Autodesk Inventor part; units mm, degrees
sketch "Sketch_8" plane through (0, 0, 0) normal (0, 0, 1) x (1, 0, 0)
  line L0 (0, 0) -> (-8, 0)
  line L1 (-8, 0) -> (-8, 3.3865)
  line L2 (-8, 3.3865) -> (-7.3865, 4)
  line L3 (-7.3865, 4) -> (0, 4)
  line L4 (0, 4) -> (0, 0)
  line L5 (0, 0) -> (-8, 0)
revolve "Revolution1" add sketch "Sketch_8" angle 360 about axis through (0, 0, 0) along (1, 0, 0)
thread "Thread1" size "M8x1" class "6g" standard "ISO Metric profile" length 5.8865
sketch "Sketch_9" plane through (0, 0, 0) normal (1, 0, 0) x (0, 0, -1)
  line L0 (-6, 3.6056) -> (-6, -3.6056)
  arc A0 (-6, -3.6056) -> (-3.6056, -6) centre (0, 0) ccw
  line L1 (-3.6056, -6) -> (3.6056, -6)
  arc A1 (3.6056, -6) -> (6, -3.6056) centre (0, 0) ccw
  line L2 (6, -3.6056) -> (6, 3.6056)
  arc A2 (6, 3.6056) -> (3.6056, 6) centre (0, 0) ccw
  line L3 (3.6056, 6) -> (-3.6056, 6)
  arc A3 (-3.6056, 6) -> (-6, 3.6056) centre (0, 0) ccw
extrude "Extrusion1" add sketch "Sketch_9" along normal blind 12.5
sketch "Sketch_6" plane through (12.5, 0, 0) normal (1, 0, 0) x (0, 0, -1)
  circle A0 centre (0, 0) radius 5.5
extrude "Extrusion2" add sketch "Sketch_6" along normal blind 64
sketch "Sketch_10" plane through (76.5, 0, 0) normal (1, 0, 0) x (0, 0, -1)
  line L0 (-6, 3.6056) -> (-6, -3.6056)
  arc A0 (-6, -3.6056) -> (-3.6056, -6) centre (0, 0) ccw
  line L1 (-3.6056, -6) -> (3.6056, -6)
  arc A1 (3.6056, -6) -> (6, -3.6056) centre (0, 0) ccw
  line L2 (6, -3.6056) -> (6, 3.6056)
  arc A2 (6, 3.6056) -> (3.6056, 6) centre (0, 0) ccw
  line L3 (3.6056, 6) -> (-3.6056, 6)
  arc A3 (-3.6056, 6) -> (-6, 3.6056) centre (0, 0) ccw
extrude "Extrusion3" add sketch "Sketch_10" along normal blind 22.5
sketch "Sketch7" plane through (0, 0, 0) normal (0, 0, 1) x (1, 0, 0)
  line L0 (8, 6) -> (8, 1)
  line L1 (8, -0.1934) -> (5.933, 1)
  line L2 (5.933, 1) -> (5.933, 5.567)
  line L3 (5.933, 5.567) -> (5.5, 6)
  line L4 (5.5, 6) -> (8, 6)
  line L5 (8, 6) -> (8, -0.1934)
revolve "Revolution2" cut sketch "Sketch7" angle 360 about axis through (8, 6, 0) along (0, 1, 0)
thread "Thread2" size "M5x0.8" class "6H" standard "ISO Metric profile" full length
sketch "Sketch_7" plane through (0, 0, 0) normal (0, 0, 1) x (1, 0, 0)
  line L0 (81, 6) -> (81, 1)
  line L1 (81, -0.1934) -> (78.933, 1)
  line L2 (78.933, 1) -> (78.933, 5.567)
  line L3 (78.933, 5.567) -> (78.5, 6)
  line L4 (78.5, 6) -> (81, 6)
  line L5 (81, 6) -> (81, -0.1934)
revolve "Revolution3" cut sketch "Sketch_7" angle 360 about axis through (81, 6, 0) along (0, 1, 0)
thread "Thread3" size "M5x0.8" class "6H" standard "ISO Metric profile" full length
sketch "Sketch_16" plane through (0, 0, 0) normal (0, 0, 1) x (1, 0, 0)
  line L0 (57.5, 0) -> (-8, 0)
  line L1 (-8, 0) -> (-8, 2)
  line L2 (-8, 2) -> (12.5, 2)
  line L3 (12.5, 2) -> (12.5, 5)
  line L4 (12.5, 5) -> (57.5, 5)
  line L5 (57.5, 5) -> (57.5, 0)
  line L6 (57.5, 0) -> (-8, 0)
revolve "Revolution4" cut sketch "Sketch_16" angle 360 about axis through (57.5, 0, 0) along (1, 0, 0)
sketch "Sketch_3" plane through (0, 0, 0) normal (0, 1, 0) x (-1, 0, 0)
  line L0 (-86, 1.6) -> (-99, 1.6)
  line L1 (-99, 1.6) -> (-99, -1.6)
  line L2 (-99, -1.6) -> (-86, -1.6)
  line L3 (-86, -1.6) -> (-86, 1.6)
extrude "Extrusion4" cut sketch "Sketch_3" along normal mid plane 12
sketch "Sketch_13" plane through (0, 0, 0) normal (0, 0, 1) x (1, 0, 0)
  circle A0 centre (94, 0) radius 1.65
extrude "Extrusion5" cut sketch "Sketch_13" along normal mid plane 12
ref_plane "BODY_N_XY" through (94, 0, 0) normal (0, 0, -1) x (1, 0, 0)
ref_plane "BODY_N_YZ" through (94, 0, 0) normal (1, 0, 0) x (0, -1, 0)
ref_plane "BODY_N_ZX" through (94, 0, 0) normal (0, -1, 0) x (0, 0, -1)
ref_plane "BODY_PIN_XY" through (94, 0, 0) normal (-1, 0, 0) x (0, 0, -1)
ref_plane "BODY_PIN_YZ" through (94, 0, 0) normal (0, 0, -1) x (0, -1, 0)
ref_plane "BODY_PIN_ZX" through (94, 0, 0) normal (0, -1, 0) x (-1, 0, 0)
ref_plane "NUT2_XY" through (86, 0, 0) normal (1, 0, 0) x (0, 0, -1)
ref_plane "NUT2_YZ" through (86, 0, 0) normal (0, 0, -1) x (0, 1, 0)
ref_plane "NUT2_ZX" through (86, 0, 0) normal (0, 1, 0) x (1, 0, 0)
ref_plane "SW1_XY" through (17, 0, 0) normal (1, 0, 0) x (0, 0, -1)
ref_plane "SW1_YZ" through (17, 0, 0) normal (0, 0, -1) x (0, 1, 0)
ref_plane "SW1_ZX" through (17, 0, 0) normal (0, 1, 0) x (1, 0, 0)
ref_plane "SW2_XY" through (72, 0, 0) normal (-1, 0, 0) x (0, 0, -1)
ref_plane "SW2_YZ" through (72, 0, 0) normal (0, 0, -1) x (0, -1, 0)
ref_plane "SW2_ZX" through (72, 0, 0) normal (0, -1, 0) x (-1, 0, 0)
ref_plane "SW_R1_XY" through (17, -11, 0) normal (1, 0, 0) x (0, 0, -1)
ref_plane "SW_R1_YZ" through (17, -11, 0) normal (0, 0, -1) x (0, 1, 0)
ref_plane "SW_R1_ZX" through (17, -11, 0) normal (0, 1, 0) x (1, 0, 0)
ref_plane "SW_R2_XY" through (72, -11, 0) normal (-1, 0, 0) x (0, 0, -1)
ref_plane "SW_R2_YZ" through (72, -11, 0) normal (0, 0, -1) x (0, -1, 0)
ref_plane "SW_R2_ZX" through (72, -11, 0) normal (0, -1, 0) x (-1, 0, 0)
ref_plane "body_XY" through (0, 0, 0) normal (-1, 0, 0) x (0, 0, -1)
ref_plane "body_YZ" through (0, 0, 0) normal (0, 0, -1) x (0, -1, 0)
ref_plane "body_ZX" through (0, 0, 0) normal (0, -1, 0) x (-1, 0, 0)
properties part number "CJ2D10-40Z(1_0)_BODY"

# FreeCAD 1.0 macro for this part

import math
import FreeCAD as App
import Part
import Sketcher

V = App.Vector
Q = App.Units.Quantity

doc = App.newDocument("Part")
params = doc.addObject("Spreadsheet::Sheet", "Params")
for row, (alias, value) in enumerate([
    ("sketch1_width", "8 mm"),
    ("sketch1_height", "4 mm"),
    ("revolution_angle", "360 deg"),
    ("sketch2_radius", "7 mm"),
    ("pad1_length", "12.5 mm"),
    ("sketch3_diameter", "11 mm"),
    ("pad2_length", "64 mm"),
    ("sketch4_radius", "7 mm"),
    ("pad3_length", "22.5 mm"),
    ("sketch5_width", "2.5 mm"),
    ("groove_angle", "360 deg"),
    ("sketch6_width", "2.5 mm"),
    ("groove2_angle", "360 deg"),
    ("sketch7_width", "45 mm"),
    ("sketch7_height", "5 mm"),
    ("sketch7_height2", "3 mm"),
    ("sketch7_width2", "65.5 mm"),
    ("groove3_angle", "360 deg"),
    ("sketch8_width", "13 mm"),
    ("sketch8_height", "3.2 mm"),
    ("pocket1_length", "12 mm"),
    ("sketch9_diameter", "3.3 mm"),
    ("pocket2_length", "12 mm"),
], start=1):
    params.set(f"A{row}", alias)
    params.set(f"B{row}", "=" + value)
    params.setAlias(f"B{row}", alias)

body = doc.addObject("PartDesign::Body", "Body")

# Sketch on XY plane
sketch1 = doc.addObject("Sketcher::SketchObject", "Sketch")
body.addObject(sketch1)
sketch1.AttachmentSupport = (doc.XY_Plane, [""])
sketch1.MapMode = "FlatFace"
sketch1.addGeometry([
    Part.LineSegment(V(-8, 0, 0), V(0, 0, 0)),  # 0
    Part.LineSegment(V(0, 0, 0), V(0, 4, 0)),  # 1
    Part.LineSegment(V(0, 4, 0), V(-7.4, 4, 0)),  # 2
    Part.LineSegment(V(-7.4, 4, 0), V(-8, 3.4, 0)),  # 3
    Part.LineSegment(V(-8, 3.4, 0), V(-8, 0, 0)),  # 4
], False)
sketch1.addConstraint([
    Sketcher.Constraint("Coincident", 0, 2, 1, 1),
    Sketcher.Constraint("Coincident", 1, 2, 2, 1),
    Sketcher.Constraint("Coincident", 2, 2, 3, 1),
    Sketcher.Constraint("Coincident", 3, 2, 4, 1),
    Sketcher.Constraint("Coincident", 4, 2, 0, 1),
    Sketcher.Constraint("Horizontal", 0),
    Sketcher.Constraint("Vertical", 1),
    Sketcher.Constraint("Horizontal", 2),
    Sketcher.Constraint("Vertical", 4),
    Sketcher.Constraint("Coincident", 0, 2, -1, 1),
    Sketcher.Constraint("DistanceX", 0, 1, 0, 2, 8.0),
    Sketcher.Constraint("DistanceY", 1, 1, 1, 2, 4.0),
    Sketcher.Constraint("Angle", 3, Q("-135 deg")),
    Sketcher.Constraint("DistanceX", 2, 2, 2, 1, 7.3865),
])
sketch1.setExpression("Constraints[10]", "Params.sketch1_width")
sketch1.setExpression("Constraints[11]", "Params.sketch1_height")
revolution = doc.addObject("PartDesign::Revolution", "Revolution")
body.addObject(revolution)
revolution.Profile = sketch1
revolution.ReferenceAxis = (sketch1, ["H_Axis"])
revolution.setExpression("Angle", "Params.revolution_angle")

# Sketch on YZ plane
sketch2 = doc.addObject("Sketcher::SketchObject", "Sketch001")
body.addObject(sketch2)
sketch2.AttachmentSupport = (doc.YZ_Plane, [""])
sketch2.MapMode = "FlatFace"
sketch2.addGeometry([
    Part.ArcOfCircle(Part.Circle(V(0, 0, 0), V(0, 0, 1), 7), math.radians(31), math.radians(59)),  # 0
    Part.LineSegment(V(3.6, 6, 0), V(-3.6, 6, 0)),  # 1
    Part.ArcOfCircle(Part.Circle(V(0, 0, 0), V(0, 0, 1), 7), math.radians(121), math.radians(149)),  # 2
    Part.LineSegment(V(-6, 3.6, 0), V(-6, -3.6, 0)),  # 3
    Part.ArcOfCircle(Part.Circle(V(0, 0, 0), V(0, 0, 1), 7), math.radians(-149), math.radians(-121)),  # 4
    Part.LineSegment(V(-3.6, -6, 0), V(3.6, -6, 0)),  # 5
    Part.ArcOfCircle(Part.Circle(V(0, 0, 0), V(0, 0, 1), 7), math.radians(-59), math.radians(-31)),  # 6
    Part.LineSegment(V(6, -3.6, 0), V(6, 3.6, 0)),  # 7
], False)
sketch2.addConstraint([
    Sketcher.Constraint("Coincident", 0, 2, 1, 1),
    Sketcher.Constraint("Coincident", 1, 2, 2, 1),
    Sketcher.Constraint("Coincident", 2, 2, 3, 1),
    Sketcher.Constraint("Coincident", 3, 2, 4, 1),
    Sketcher.Constraint("Coincident", 4, 2, 5, 1),
    Sketcher.Constraint("Coincident", 5, 2, 6, 1),
    Sketcher.Constraint("Coincident", 6, 2, 7, 1),
    Sketcher.Constraint("Coincident", 7, 2, 0, 1),
    Sketcher.Constraint("Horizontal", 1),
    Sketcher.Constraint("Vertical", 3),
    Sketcher.Constraint("Horizontal", 5),
    Sketcher.Constraint("Vertical", 7),
    Sketcher.Constraint("Coincident", 0, 3, -1, 1),
    Sketcher.Constraint("Coincident", 2, 3, -1, 1),
    Sketcher.Constraint("Coincident", 4, 3, -1, 1),
    Sketcher.Constraint("Coincident", 6, 3, -1, 1),
    Sketcher.Constraint("Equal", 0, 2),
    Sketcher.Constraint("Equal", 2, 4),
    Sketcher.Constraint("Equal", 4, 6),
    Sketcher.Constraint("Horizontal", 3, 2, 6, 2),
    Sketcher.Constraint("Vertical", 1, 2, 4, 2),
    Sketcher.Constraint("Equal", 5, 3),
    Sketcher.Constraint("Radius", 0, 7.0),
    Sketcher.Constraint("DistanceY", -1, 1, 0, 2, 6.0),
])
sketch2.setExpression("Constraints[22]", "Params.sketch2_radius")
pad1 = doc.addObject("PartDesign::Pad", "Pad")
body.addObject(pad1)
pad1.Profile = sketch2
pad1.setExpression("Length", "Params.pad1_length")

# Sketch on YZ plane
sketch3 = doc.addObject("Sketcher::SketchObject", "Sketch002")
body.addObject(sketch3)
sketch3.AttachmentSupport = (doc.YZ_Plane, [""])
sketch3.MapMode = "FlatFace"
sketch3.AttachmentOffset = App.Placement(V(0, 0, 12.5), App.Rotation())
sketch3.addGeometry(Part.Circle(V(0, 0, 0), V(0, 0, 1), 6), False)
sketch3.addConstraint([
    Sketcher.Constraint("Coincident", 0, 3, -1, 1),
    Sketcher.Constraint("Diameter", 0, 11.0),
])
sketch3.setExpression("Constraints[1]", "Params.sketch3_diameter")
pad2 = doc.addObject("PartDesign::Pad", "Pad001")
body.addObject(pad2)
pad2.Profile = sketch3
pad2.setExpression("Length", "Params.pad2_length")

# Sketch on YZ plane
sketch4 = doc.addObject("Sketcher::SketchObject", "Sketch003")
body.addObject(sketch4)
sketch4.AttachmentSupport = (doc.YZ_Plane, [""])
sketch4.MapMode = "FlatFace"
sketch4.AttachmentOffset = App.Placement(V(0, 0, 76.5), App.Rotation())
sketch4.addGeometry([
    Part.ArcOfCircle(Part.Circle(V(0, 0, 0), V(0, 0, 1), 7), math.radians(31), math.radians(59)),  # 0
    Part.LineSegment(V(3.6, 6, 0), V(-3.6, 6, 0)),  # 1
    Part.ArcOfCircle(Part.Circle(V(0, 0, 0), V(0, 0, 1), 7), math.radians(121), math.radians(149)),  # 2
    Part.LineSegment(V(-6, 3.6, 0), V(-6, -3.6, 0)),  # 3
    Part.ArcOfCircle(Part.Circle(V(0, 0, 0), V(0, 0, 1), 7), math.radians(-149), math.radians(-121)),  # 4
    Part.LineSegment(V(-3.6, -6, 0), V(3.6, -6, 0)),  # 5
    Part.ArcOfCircle(Part.Circle(V(0, 0, 0), V(0, 0, 1), 7), math.radians(-59), math.radians(-31)),  # 6
    Part.LineSegment(V(6, -3.6, 0), V(6, 3.6, 0)),  # 7
], False)
sketch4.addConstraint([
    Sketcher.Constraint("Coincident", 0, 2, 1, 1),
    Sketcher.Constraint("Coincident", 1, 2, 2, 1),
    Sketcher.Constraint("Coincident", 2, 2, 3, 1),
    Sketcher.Constraint("Coincident", 3, 2, 4, 1),
    Sketcher.Constraint("Coincident", 4, 2, 5, 1),
    Sketcher.Constraint("Coincident", 5, 2, 6, 1),
    Sketcher.Constraint("Coincident", 6, 2, 7, 1),
    Sketcher.Constraint("Coincident", 7, 2, 0, 1),
    Sketcher.Constraint("Horizontal", 1),
    Sketcher.Constraint("Vertical", 3),
    Sketcher.Constraint("Horizontal", 5),
    Sketcher.Constraint("Vertical", 7),
    Sketcher.Constraint("Coincident", 0, 3, -1, 1),
    Sketcher.Constraint("Coincident", 2, 3, -1, 1),
    Sketcher.Constraint("Coincident", 4, 3, -1, 1),
    Sketcher.Constraint("Coincident", 6, 3, -1, 1),
    Sketcher.Constraint("Equal", 0, 2),
    Sketcher.Constraint("Equal", 2, 4),
    Sketcher.Constraint("Equal", 4, 6),
    Sketcher.Constraint("Horizontal", 3, 2, 6, 2),
    Sketcher.Constraint("Vertical", 1, 2, 4, 2),
    Sketcher.Constraint("Equal", 5, 3),
    Sketcher.Constraint("Radius", 0, 7.0),
    Sketcher.Constraint("DistanceY", -1, 1, 0, 2, 6.0),
])
sketch4.setExpression("Constraints[22]", "Params.sketch4_radius")
pad3 = doc.addObject("PartDesign::Pad", "Pad002")
body.addObject(pad3)
pad3.Profile = sketch4
pad3.setExpression("Length", "Params.pad3_length")

# Sketch on XY plane
sketch5 = doc.addObject("Sketcher::SketchObject", "Sketch004")
body.addObject(sketch5)
sketch5.AttachmentSupport = (doc.XY_Plane, [""])
sketch5.MapMode = "FlatFace"
sketch5.addGeometry([
    Part.LineSegment(V(8, -0.2, 0), V(8, 6, 0)),  # 0
    Part.LineSegment(V(8, 6, 0), V(5.5, 6, 0)),  # 1
    Part.LineSegment(V(5.5, 6, 0), V(5.9, 5.6, 0)),  # 2
    Part.LineSegment(V(5.9, 5.6, 0), V(5.9, 1, 0)),  # 3
    Part.LineSegment(V(5.9, 1, 0), V(8, -0.2, 0)),  # 4
], False)
sketch5.addGeometry(Part.LineSegment(V(8, -0.2, 0), V(8, 6, 0)), True)  # axis
sketch5.addConstraint([
    Sketcher.Constraint("Coincident", 0, 2, 1, 1),
    Sketcher.Constraint("Coincident", 1, 2, 2, 1),
    Sketcher.Constraint("Coincident", 2, 2, 3, 1),
    Sketcher.Constraint("Coincident", 3, 2, 4, 1),
    Sketcher.Constraint("Coincident", 4, 2, 0, 1),
    Sketcher.Constraint("Vertical", 0),
    Sketcher.Constraint("Horizontal", 1),
    Sketcher.Constraint("Vertical", 3),
    Sketcher.Constraint("Vertical", 5),
    Sketcher.Constraint("Coincident", 5, 1, 4, 2),
    Sketcher.Constraint("Horizontal", 1, 2, 5, 2),
    Sketcher.Constraint("Angle", 2, Q("-45 deg")),
    Sketcher.Constraint("Angle", 4, Q("-30.0004 deg")),
    Sketcher.Constraint("DistanceX", 1, 2, 1, 1, 2.5),
    Sketcher.Constraint("DistanceX", -1, 1, 0, 2, 8.0),
    Sketcher.Constraint("DistanceY", -1, 1, 0, 2, 6.0),
    Sketcher.Constraint("DistanceY", -1, 1, 3, 2, 1.0),
    Sketcher.Constraint("DistanceY", 3, 2, 3, 1, 4.567),
])
sketch5.setExpression("Constraints[13]", "Params.sketch5_width")
groove = doc.addObject("PartDesign::Groove", "Groove")
body.addObject(groove)
groove.Profile = sketch5
groove.ReferenceAxis = (sketch5, ["Axis0"])
groove.setExpression("Angle", "Params.groove_angle")

# Sketch on XY plane
sketch6 = doc.addObject("Sketcher::SketchObject", "Sketch005")
body.addObject(sketch6)
sketch6.AttachmentSupport = (doc.XY_Plane, [""])
sketch6.MapMode = "FlatFace"
sketch6.addGeometry([
    Part.LineSegment(V(81, -0.2, 0), V(81, 6, 0)),  # 0
    Part.LineSegment(V(81, 6, 0), V(78.5, 6, 0)),  # 1
    Part.LineSegment(V(78.5, 6, 0), V(78.9, 5.6, 0)),  # 2
    Part.LineSegment(V(78.9, 5.6, 0), V(78.9, 1, 0)),  # 3
    Part.LineSegment(V(78.9, 1, 0), V(81, -0.2, 0)),  # 4
], False)
sketch6.addGeometry(Part.LineSegment(V(81, -0.2, 0), V(81, 6, 0)), True)  # axis
sketch6.addConstraint([
    Sketcher.Constraint("Coincident", 0, 2, 1, 1),
    Sketcher.Constraint("Coincident", 1, 2, 2, 1),
    Sketcher.Constraint("Coincident", 2, 2, 3, 1),
    Sketcher.Constraint("Coincident", 3, 2, 4, 1),
    Sketcher.Constraint("Coincident", 4, 2, 0, 1),
    Sketcher.Constraint("Vertical", 0),
    Sketcher.Constraint("Horizontal", 1),
    Sketcher.Constraint("Vertical", 3),
    Sketcher.Constraint("Vertical", 5),
    Sketcher.Constraint("Coincident", 5, 1, 4, 2),
    Sketcher.Constraint("Horizontal", 1, 2, 5, 2),
    Sketcher.Constraint("Angle", 2, Q("-45 deg")),
    Sketcher.Constraint("Angle", 4, Q("-30.0004 deg")),
    Sketcher.Constraint("DistanceX", 1, 2, 1, 1, 2.5),
    Sketcher.Constraint("DistanceX", -1, 1, 0, 2, 81.0),
    Sketcher.Constraint("DistanceY", -1, 1, 0, 2, 6.0),
    Sketcher.Constraint("DistanceY", -1, 1, 3, 2, 1.0),
    Sketcher.Constraint("DistanceY", 3, 2, 3, 1, 4.567),
])
sketch6.setExpression("Constraints[13]", "Params.sketch6_width")
groove2 = doc.addObject("PartDesign::Groove", "Groove001")
body.addObject(groove2)
groove2.Profile = sketch6
groove2.ReferenceAxis = (sketch6, ["Axis0"])
groove2.setExpression("Angle", "Params.groove2_angle")

# Sketch on XY plane
sketch7 = doc.addObject("Sketcher::SketchObject", "Sketch006")
body.addObject(sketch7)
sketch7.AttachmentSupport = (doc.XY_Plane, [""])
sketch7.MapMode = "FlatFace"
sketch7.addGeometry([
    Part.LineSegment(V(-8, 0, 0), V(57.5, 0, 0)),  # 0
    Part.LineSegment(V(57.5, 0, 0), V(57.5, 5, 0)),  # 1
    Part.LineSegment(V(57.5, 5, 0), V(12.5, 5, 0)),  # 2
    Part.LineSegment(V(12.5, 5, 0), V(12.5, 2, 0)),  # 3
    Part.LineSegment(V(12.5, 2, 0), V(-8, 2, 0)),  # 4
    Part.LineSegment(V(-8, 2, 0), V(-8, 0, 0)),  # 5
], False)
sketch7.addConstraint([
    Sketcher.Constraint("Coincident", 0, 2, 1, 1),
    Sketcher.Constraint("Coincident", 1, 2, 2, 1),
    Sketcher.Constraint("Coincident", 2, 2, 3, 1),
    Sketcher.Constraint("Coincident", 3, 2, 4, 1),
    Sketcher.Constraint("Coincident", 4, 2, 5, 1),
    Sketcher.Constraint("Coincident", 5, 2, 0, 1),
    Sketcher.Constraint("Horizontal", 0),
    Sketcher.Constraint("Vertical", 1),
    Sketcher.Constraint("Horizontal", 2),
    Sketcher.Constraint("Vertical", 3),
    Sketcher.Constraint("Horizontal", 4),
    Sketcher.Constraint("Vertical", 5),
    Sketcher.Constraint("PointOnObject", 0, 2, -1),
    Sketcher.Constraint("DistanceX", 2, 2, 2, 1, 45.0),
    Sketcher.Constraint("DistanceY", 1, 1, 1, 2, 5.0),
    Sketcher.Constraint("DistanceY", 3, 2, 3, 1, 3.0),
    Sketcher.Constraint("DistanceX", 0, 1, 0, 2, 65.5),
    Sketcher.Constraint("DistanceX", 4, 2, -1, 1, 8.0),
])
sketch7.setExpression("Constraints[13]", "Params.sketch7_width")
sketch7.setExpression("Constraints[14]", "Params.sketch7_height")
sketch7.setExpression("Constraints[15]", "Params.sketch7_height2")
sketch7.setExpression("Constraints[16]", "Params.sketch7_width2")
groove3 = doc.addObject("PartDesign::Groove", "Groove002")
body.addObject(groove3)
groove3.Profile = sketch7
groove3.ReferenceAxis = (sketch7, ["H_Axis"])
groove3.setExpression("Angle", "Params.groove3_angle")

# Sketch on XZ plane
sketch8 = doc.addObject("Sketcher::SketchObject", "Sketch007")
body.addObject(sketch8)
sketch8.AttachmentSupport = (doc.XZ_Plane, [""])
sketch8.MapMode = "FlatFace"
sketch8.addGeometry([
    Part.LineSegment(V(86, -1.6, 0), V(86, 1.6, 0)),
    Part.LineSegment(V(86, 1.6, 0), V(99, 1.6, 0)),
    Part.LineSegment(V(99, 1.6, 0), V(99, -1.6, 0)),
    Part.LineSegment(V(99, -1.6, 0), V(86, -1.6, 0)),
], False)
sketch8.addConstraint([
    Sketcher.Constraint("Coincident", 0, 2, 1, 1),
    Sketcher.Constraint("Coincident", 1, 2, 2, 1),
    Sketcher.Constraint("Coincident", 2, 2, 3, 1),
    Sketcher.Constraint("Coincident", 3, 2, 0, 1),
    Sketcher.Constraint("Vertical", 0),
    Sketcher.Constraint("Horizontal", 1),
    Sketcher.Constraint("Vertical", 2),
    Sketcher.Constraint("Horizontal", 3),
    Sketcher.Constraint("DistanceX", 1, 1, 1, 2, 13.0),
    Sketcher.Constraint("DistanceY", 0, 1, 0, 2, 3.2),
    Sketcher.Constraint("DistanceX", -1, 1, 0, 2, 86.0),
    Sketcher.Constraint("DistanceY", -1, 1, 0, 2, 1.6),
])
sketch8.setExpression("Constraints[8]", "Params.sketch8_width")
sketch8.setExpression("Constraints[9]", "Params.sketch8_height")
pocket1 = doc.addObject("PartDesign::Pocket", "Pocket")
body.addObject(pocket1)
pocket1.Profile = sketch8
pocket1.setExpression("Length", "Params.pocket1_length")
pocket1.Midplane = True

# Sketch on XY plane
sketch9 = doc.addObject("Sketcher::SketchObject", "Sketch008")
body.addObject(sketch9)
sketch9.AttachmentSupport = (doc.XY_Plane, [""])
sketch9.MapMode = "FlatFace"
sketch9.addGeometry(Part.Circle(V(94, 0, 0), V(0, 0, 1), 1.6), False)
sketch9.addConstraint([
    Sketcher.Constraint("PointOnObject", 0, 3, -1),
    Sketcher.Constraint("Diameter", 0, 3.3),
    Sketcher.Constraint("DistanceX", -1, 1, 0, 3, 94.0),
])
sketch9.setExpression("Constraints[1]", "Params.sketch9_diameter")
pocket2 = doc.addObject("PartDesign::Pocket", "Pocket001")
body.addObject(pocket2)
pocket2.Profile = sketch9
pocket2.setExpression("Length", "Params.pocket2_length")
pocket2.Midplane = True

doc.recompute()
